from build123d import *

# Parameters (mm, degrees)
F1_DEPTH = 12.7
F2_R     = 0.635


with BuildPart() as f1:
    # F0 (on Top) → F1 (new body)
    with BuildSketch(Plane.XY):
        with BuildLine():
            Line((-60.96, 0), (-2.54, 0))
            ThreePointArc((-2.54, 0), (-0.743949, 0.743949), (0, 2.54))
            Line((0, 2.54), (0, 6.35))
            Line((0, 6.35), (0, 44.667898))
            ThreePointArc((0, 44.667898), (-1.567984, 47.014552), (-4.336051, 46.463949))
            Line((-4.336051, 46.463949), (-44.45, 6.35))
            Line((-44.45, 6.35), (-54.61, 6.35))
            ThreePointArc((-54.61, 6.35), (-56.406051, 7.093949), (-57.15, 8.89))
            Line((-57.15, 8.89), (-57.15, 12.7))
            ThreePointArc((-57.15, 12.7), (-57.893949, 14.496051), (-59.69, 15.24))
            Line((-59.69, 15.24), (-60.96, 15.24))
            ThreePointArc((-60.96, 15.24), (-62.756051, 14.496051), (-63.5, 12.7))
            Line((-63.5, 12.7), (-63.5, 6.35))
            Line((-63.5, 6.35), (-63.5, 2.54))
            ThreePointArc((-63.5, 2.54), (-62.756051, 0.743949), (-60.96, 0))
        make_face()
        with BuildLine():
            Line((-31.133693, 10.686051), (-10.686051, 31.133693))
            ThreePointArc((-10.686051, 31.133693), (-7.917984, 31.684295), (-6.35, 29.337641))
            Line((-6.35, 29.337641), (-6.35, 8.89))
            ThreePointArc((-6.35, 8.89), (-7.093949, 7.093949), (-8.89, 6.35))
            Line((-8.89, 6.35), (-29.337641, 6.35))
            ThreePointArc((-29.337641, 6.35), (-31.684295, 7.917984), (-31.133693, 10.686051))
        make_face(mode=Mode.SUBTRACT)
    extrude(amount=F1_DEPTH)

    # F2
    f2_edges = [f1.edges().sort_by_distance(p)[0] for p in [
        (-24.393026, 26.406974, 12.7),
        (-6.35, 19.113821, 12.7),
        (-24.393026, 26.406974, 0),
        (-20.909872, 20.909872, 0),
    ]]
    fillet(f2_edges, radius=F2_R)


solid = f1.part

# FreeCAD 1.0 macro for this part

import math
import FreeCAD as App
import Part
import Sketcher
from FreeCAD import Vector
Q = App.Units.Quantity


def edges_at(feature, points):
    """Names of the edges that pass closest to the given points."""
    edges = feature.Shape.Edges
    near = lambda p: min(range(len(edges)), key=lambda i: edges[i].distToShape(Part.Vertex(*p))[0])
    return sorted({f"Edge{near(p) + 1}" for p in points})

doc = App.newDocument("Part")
params = doc.addObject("Spreadsheet::Sheet", "Params")
for row, (alias, value) in enumerate([
    ("sketch1_radius", "0.1 in"),
    ("sketch1_width", "2.3 in"),
    ("sketch1_width2", "0.4 in"),
    ("sketch1_width3", "0.05 in"),
    ("sketch1_height", "0.15 in"),
    ("pad1_length", "0.5 in"),
    ("fillet_radius", "0.025 in"),
], start=1):
    params.set(f"A{row}", alias)
    params.set(f"B{row}", "=" + value)
    params.setAlias(f"B{row}", alias)

body = doc.addObject("PartDesign::Body", "Body")

# Sketch on XY plane
sketch1 = body.newObject("Sketcher::SketchObject", "Sketch")
sketch1.AttachmentSupport = (doc.getObject("XY_Plane"), [""])
sketch1.MapMode = "FlatFace"
sketch1.addGeometry([
    Part.LineSegment(Vector(-61, 0, 0), Vector(-2.5, 0, 0)),  # 0
    Part.ArcOfCircle(Part.Circle(Vector(-2.5, 2.5, 0), Vector(0, 0, 1), 2.5), math.radians(-90), math.radians(0)),  # 1
    Part.LineSegment(Vector(0, 2.5, 0), Vector(0, 44.7, 0)),  # 2
    Part.ArcOfCircle(Part.Circle(Vector(-2.5, 44.7, 0), Vector(0, 0, 1), 2.5), math.radians(0), math.radians(135)),  # 3
    Part.LineSegment(Vector(-4.3, 46.5, 0), Vector(-44.5, 6.3, 0)),  # 4
    Part.LineSegment(Vector(-44.5, 6.3, 0), Vector(-54.6, 6.3, 0)),  # 5
    Part.ArcOfCircle(Part.Circle(Vector(-54.6, 8.9, 0), Vector(0, 0, 1), 2.5), math.radians(-180), math.radians(-90)),  # 6
    Part.LineSegment(Vector(-57.1, 8.9, 0), Vector(-57.1, 12.7, 0)),  # 7
    Part.ArcOfCircle(Part.Circle(Vector(-59.7, 12.7, 0), Vector(0, 0, 1), 2.5), math.radians(0), math.radians(90)),  # 8
    Part.LineSegment(Vector(-59.7, 15.2, 0), Vector(-61, 15.2, 0)),  # 9
    Part.ArcOfCircle(Part.Circle(Vector(-61, 12.7, 0), Vector(0, 0, 1), 2.5), math.radians(90), math.radians(180)),  # 10
    Part.LineSegment(Vector(-63.5, 12.7, 0), Vector(-63.5, 2.5, 0)),  # 11
    Part.ArcOfCircle(Part.Circle(Vector(-61, 2.5, 0), Vector(0, 0, 1), 2.5), math.radians(-180), math.radians(-90)),  # 12
    Part.ArcOfCircle(Part.Circle(Vector(-29.3, 8.9, 0), Vector(0, 0, 1), 2.5), math.radians(135), math.radians(270)),  # 13
    Part.LineSegment(Vector(-31.1, 10.7, 0), Vector(-10.7, 31.1, 0)),  # 14
    Part.ArcOfCircle(Part.Circle(Vector(-8.9, 29.3, 0), Vector(0, 0, 1), 2.5), math.radians(0), math.radians(135)),  # 15
    Part.LineSegment(Vector(-6.3, 29.3, 0), Vector(-6.3, 8.9, 0)),  # 16
    Part.ArcOfCircle(Part.Circle(Vector(-8.9, 8.9, 0), Vector(0, 0, 1), 2.5), math.radians(-90), math.radians(0)),  # 17
    Part.LineSegment(Vector(-8.9, 6.3, 0), Vector(-29.3, 6.3, 0)),  # 18
], False)
sketch1.addConstraint([
    Sketcher.Constraint("Tangent", 0, 2, 1, 1),
    Sketcher.Constraint("Tangent", 1, 2, 2, 1),
    Sketcher.Constraint("Tangent", 2, 2, 3, 1),
    Sketcher.Constraint("Tangent", 3, 2, 4, 1),
    Sketcher.Constraint("Coincident", 4, 2, 5, 1),
    Sketcher.Constraint("Tangent", 5, 2, 6, 2),
    Sketcher.Constraint("Tangent", 6, 1, 7, 1),
    Sketcher.Constraint("Tangent", 7, 2, 8, 1),
    Sketcher.Constraint("Tangent", 8, 2, 9, 1),
    Sketcher.Constraint("Tangent", 9, 2, 10, 1),
    Sketcher.Constraint("Tangent", 10, 2, 11, 1),
    Sketcher.Constraint("Tangent", 11, 2, 12, 1),
    Sketcher.Constraint("Tangent", 12, 2, 0, 1),
    Sketcher.Constraint("Tangent", 13, 1, 14, 1),
    Sketcher.Constraint("Tangent", 14, 2, 15, 2),
    Sketcher.Constraint("Tangent", 15, 1, 16, 1),
    Sketcher.Constraint("Tangent", 16, 2, 17, 2),
    Sketcher.Constraint("Tangent", 17, 1, 18, 1),
    Sketcher.Constraint("Tangent", 18, 2, 13, 2),
    Sketcher.Constraint("Horizontal", 0),
    Sketcher.Constraint("Vertical", 2),
    Sketcher.Constraint("Horizontal", 5),
    Sketcher.Constraint("Vertical", 7),
    Sketcher.Constraint("Horizontal", 9),
    Sketcher.Constraint("Vertical", 11),
    Sketcher.Constraint("Vertical", 16),
    Sketcher.Constraint("Horizontal", 18),
    Sketcher.Constraint("Equal", 1, 3),
    Sketcher.Constraint("Equal", 3, 6),
    Sketcher.Constraint("Equal", 6, 8),
    Sketcher.Constraint("Equal", 8, 10),
    Sketcher.Constraint("Equal", 10, 12),
    Sketcher.Constraint("Equal", 12, 13),
    Sketcher.Constraint("Equal", 13, 15),
    Sketcher.Constraint("Equal", 15, 17),
    Sketcher.Constraint("PointOnObject", 0, 2, -1),
    Sketcher.Constraint("PointOnObject", 1, 2, -2),
    Sketcher.Constraint("Parallel", 4, 14),
    Sketcher.Constraint("Horizontal", 6, 3, 13, 3),
    Sketcher.Constraint("Equal", 5, 11),
    Sketcher.Constraint("Equal", 18, 16),
    Sketcher.Constraint("Radius", 1, Q("0.1 in")),
    Sketcher.Constraint("DistanceX", 0, 1, 0, 2, Q("2.3 in")),
    Sketcher.Constraint("DistanceX", 5, 2, 5, 1, Q("0.4 in")),
    Sketcher.Constraint("DistanceX", 8, 3, 15, 3, Q("2 in")),
    Sketcher.Constraint("DistanceX", 9, 2, 9, 1, Q("0.05 in")),
    Sketcher.Constraint("DistanceY", 7, 1, 7, 2, Q("0.15 in")),
    Sketcher.Constraint("DistanceX", 18, 2, 18, 1, Q("20.447641 mm")),
])
sketch1.setExpression("Constraints[41]", "Params.sketch1_radius")
sketch1.setExpression("Constraints[42]", "Params.sketch1_width")
sketch1.setExpression("Constraints[43]", "Params.sketch1_width2")
sketch1.setExpression("Constraints[45]", "Params.sketch1_width3")
sketch1.setExpression("Constraints[46]", "Params.sketch1_height")
pad1 = body.newObject("PartDesign::Pad", "Pad")
pad1.Profile = sketch1
pad1.setExpression("Length", "Params.pad1_length")
doc.recompute()

fillet = body.newObject("PartDesign::Fillet", "Fillet")
fillet.Base = (pad1, edges_at(pad1, [
    (-24.393, 26.407, 12.7),
    (-6.35, 19.114, 12.7),
    (-24.393, 26.407, 0),
    (-20.91, 20.91, 0),
]))
fillet.setExpression("Radius", "Params.fillet_radius")

doc.recompute()
